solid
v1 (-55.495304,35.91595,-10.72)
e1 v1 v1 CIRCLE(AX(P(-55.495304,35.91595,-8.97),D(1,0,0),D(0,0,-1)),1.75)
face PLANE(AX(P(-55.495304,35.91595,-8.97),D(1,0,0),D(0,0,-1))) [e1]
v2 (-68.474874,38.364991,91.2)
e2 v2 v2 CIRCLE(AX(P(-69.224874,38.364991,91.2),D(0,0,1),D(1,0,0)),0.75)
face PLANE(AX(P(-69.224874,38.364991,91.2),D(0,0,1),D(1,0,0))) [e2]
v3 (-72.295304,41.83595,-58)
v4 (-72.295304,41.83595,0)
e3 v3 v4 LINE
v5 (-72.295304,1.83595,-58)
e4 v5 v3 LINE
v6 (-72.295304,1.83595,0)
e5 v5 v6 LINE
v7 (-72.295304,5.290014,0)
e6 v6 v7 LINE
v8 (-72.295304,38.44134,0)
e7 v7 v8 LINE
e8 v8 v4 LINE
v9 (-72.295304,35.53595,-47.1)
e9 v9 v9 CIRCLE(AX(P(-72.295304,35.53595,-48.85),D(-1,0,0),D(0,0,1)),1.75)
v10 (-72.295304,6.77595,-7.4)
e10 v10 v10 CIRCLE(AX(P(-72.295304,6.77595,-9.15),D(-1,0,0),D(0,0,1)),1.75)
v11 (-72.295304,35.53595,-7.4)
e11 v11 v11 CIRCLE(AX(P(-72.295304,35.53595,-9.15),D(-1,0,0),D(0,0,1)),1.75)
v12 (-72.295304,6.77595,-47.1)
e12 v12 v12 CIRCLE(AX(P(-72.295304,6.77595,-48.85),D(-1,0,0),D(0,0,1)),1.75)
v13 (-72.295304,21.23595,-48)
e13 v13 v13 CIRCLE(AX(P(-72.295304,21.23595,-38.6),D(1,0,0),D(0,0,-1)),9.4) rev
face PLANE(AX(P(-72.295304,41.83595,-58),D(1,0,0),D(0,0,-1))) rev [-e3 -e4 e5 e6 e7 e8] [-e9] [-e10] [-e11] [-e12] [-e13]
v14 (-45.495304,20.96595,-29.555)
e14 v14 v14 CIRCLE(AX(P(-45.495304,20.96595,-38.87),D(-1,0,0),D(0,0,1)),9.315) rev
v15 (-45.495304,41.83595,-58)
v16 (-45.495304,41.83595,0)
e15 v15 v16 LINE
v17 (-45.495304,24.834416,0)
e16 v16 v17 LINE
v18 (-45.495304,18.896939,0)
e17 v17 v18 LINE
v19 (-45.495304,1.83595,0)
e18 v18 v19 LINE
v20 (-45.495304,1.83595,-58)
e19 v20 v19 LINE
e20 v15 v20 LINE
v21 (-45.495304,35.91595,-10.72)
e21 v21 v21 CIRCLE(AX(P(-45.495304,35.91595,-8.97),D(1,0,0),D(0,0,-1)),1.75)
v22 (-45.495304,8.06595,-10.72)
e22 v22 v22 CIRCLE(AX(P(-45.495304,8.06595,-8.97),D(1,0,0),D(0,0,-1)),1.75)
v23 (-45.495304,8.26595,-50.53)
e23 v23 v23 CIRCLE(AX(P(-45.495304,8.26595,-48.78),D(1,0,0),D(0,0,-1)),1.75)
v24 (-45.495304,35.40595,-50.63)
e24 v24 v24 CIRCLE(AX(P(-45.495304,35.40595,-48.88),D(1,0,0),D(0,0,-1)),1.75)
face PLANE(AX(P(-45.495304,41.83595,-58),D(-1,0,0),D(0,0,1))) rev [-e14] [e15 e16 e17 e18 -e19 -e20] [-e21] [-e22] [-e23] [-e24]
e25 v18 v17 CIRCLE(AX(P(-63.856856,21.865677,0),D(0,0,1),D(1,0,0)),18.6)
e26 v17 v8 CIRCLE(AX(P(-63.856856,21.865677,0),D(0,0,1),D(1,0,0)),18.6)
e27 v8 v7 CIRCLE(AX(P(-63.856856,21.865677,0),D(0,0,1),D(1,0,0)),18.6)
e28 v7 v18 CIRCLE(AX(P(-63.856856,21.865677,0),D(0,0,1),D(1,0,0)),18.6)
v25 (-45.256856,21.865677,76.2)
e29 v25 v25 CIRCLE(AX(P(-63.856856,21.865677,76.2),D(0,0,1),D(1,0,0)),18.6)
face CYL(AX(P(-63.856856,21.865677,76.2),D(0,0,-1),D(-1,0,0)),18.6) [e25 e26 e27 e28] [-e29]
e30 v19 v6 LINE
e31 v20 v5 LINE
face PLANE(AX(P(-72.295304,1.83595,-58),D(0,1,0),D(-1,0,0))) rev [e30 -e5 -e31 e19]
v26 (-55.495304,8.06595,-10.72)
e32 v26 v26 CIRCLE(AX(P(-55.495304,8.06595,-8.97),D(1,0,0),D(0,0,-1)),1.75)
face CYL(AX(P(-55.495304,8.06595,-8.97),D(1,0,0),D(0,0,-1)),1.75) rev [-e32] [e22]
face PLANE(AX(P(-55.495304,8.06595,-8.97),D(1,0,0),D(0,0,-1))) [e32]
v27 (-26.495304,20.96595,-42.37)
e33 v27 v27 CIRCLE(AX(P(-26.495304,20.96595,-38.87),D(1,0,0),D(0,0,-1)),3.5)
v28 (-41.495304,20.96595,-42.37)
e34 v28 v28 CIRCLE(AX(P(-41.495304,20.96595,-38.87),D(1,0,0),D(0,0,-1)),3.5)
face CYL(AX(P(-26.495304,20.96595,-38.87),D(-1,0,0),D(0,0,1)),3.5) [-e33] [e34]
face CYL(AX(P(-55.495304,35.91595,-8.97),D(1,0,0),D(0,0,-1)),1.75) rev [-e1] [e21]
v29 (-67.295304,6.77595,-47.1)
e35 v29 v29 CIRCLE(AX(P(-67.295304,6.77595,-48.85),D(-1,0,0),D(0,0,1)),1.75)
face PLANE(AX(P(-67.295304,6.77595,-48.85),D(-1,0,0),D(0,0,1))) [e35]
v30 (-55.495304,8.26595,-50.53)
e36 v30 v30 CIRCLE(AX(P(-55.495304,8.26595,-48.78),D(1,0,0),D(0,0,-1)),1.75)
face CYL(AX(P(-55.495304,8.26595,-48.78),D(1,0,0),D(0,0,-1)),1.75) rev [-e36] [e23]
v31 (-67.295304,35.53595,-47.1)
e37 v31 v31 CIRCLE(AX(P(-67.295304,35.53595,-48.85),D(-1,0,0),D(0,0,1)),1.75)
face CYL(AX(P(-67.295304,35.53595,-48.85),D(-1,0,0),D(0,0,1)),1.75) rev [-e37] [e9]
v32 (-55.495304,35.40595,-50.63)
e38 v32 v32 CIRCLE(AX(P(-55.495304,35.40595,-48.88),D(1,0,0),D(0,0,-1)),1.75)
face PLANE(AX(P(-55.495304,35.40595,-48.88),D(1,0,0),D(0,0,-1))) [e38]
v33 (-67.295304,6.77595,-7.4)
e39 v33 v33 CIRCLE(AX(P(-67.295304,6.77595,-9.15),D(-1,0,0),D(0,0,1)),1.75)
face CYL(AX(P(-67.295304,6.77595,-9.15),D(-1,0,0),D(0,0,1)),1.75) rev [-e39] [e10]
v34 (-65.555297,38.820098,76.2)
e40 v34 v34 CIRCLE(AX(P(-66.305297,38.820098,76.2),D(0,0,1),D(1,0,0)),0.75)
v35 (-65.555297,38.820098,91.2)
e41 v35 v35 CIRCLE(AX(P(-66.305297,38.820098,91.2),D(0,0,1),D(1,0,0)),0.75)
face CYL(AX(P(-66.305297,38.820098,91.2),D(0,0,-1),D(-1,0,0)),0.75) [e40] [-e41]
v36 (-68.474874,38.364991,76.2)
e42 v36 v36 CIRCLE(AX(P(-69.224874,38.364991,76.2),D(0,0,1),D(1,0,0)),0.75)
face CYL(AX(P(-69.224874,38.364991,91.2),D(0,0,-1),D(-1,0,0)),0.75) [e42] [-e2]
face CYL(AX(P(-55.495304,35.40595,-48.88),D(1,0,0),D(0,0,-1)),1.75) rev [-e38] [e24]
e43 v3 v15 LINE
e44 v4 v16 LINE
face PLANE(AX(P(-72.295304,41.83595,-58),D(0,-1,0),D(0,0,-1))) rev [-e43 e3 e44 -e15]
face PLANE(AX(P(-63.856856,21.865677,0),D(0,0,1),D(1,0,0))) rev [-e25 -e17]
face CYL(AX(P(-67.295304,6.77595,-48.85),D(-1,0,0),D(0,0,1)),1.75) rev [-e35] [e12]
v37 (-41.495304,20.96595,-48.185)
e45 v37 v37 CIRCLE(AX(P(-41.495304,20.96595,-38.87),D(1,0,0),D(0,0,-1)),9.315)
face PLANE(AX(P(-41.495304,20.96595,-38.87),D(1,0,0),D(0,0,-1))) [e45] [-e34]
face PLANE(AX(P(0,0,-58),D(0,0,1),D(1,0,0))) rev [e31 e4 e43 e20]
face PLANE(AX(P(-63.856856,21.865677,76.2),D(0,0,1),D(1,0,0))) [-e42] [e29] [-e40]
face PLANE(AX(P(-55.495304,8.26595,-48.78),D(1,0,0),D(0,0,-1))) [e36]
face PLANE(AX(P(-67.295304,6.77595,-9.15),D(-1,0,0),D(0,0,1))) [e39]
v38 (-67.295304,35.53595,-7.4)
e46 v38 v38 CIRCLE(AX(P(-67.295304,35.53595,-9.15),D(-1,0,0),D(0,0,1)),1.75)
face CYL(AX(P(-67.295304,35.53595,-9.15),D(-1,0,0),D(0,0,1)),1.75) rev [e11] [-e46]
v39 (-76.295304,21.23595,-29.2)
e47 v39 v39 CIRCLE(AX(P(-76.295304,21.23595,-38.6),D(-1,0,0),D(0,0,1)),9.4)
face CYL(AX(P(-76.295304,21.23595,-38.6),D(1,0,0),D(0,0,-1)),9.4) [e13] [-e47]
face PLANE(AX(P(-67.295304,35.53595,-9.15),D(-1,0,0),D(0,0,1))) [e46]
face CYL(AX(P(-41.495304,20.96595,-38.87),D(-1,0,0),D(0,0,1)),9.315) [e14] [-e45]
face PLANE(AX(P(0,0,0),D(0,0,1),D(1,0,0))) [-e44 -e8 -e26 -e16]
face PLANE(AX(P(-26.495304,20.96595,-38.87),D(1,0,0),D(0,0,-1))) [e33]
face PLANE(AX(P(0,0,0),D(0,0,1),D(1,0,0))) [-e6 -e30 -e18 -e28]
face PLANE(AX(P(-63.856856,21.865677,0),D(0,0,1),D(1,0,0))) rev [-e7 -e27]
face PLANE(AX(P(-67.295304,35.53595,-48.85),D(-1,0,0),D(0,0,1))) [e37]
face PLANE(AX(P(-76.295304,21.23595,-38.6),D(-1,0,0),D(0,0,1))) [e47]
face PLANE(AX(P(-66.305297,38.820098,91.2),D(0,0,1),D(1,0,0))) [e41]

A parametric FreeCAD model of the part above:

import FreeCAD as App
import Part
import Sketcher

V = App.Vector
Q = App.Units.Quantity

doc = App.newDocument("Part")
body = doc.addObject("PartDesign::Body", "Body")

sketch1 = doc.addObject("Sketcher::SketchObject", "Sketch")
body.addObject(sketch1)
sketch1.AttachmentSupport = (doc.XY_Plane, [""])
sketch1.MapMode = "FlatFace"
sketch1.addGeometry(Part.Circle(V(-64, 22, 0), V(0, 0, 1), 19), False)
sketch1.addConstraint([
    Sketcher.Constraint("Diameter", 0, Q("37.2 mm")),
    Sketcher.Constraint("DistanceX", 0, 3, -1, 1, Q("63.856856 mm")),
    Sketcher.Constraint("DistanceY", -1, 1, 0, 3, Q("21.865677 mm")),
])
pad1 = doc.addObject("PartDesign::Pad", "Pad")
body.addObject(pad1)
pad1.Profile = sketch1
pad1.Length = 76.2

sketch2 = doc.addObject("Sketcher::SketchObject", "Sketch001")
body.addObject(sketch2)
sketch2.AttachmentSupport = (doc.XY_Plane, [""])
sketch2.MapMode = "FlatFace"
sketch2.AttachmentOffset = App.Placement(V(0, 0, 76.2), App.Rotation())
sketch2.addGeometry(Part.Circle(V(-66.3, 38.8, 0), V(0, 0, 1), 0.8), False)
sketch2.addConstraint([
    Sketcher.Constraint("Diameter", 0, Q("1.5 mm")),
    Sketcher.Constraint("DistanceX", 0, 3, -1, 1, Q("66.305297 mm")),
    Sketcher.Constraint("DistanceY", -1, 1, 0, 3, Q("38.820098 mm")),
])
pad2 = doc.addObject("PartDesign::Pad", "Pad001")
body.addObject(pad2)
pad2.Profile = sketch2
pad2.Length = 15

sketch3 = doc.addObject("Sketcher::SketchObject", "Sketch002")
body.addObject(sketch3)
sketch3.AttachmentSupport = (doc.XY_Plane, [""])
sketch3.MapMode = "FlatFace"
sketch3.AttachmentOffset = App.Placement(V(0, 0, 76.2), App.Rotation())
sketch3.addGeometry(Part.Circle(V(-69.2, 38.4, 0), V(0, 0, 1), 0.8), False)
sketch3.addConstraint([
    Sketcher.Constraint("Diameter", 0, Q("1.5 mm")),
    Sketcher.Constraint("DistanceY", -1, 1, 0, 3, Q("38.364991 mm")),
    Sketcher.Constraint("DistanceX", 0, 3, -1, 1, Q("69.224874 mm")),
])
pad3 = doc.addObject("PartDesign::Pad", "Pad002")
body.addObject(pad3)
pad3.Profile = sketch3
pad3.Length = 15

sketch4 = doc.addObject("Sketcher::SketchObject", "Sketch003")
body.addObject(sketch4)
sketch4.AttachmentSupport = (doc.XY_Plane, [""])
sketch4.MapMode = "FlatFace"
sketch4.addGeometry([
    Part.LineSegment(V(-45, 42, 0), V(-45, 2, 0)),
    Part.LineSegment(V(-45, 2, 0), V(-72, 2, 0)),
    Part.LineSegment(V(-72, 2, 0), V(-72, 42, 0)),
    Part.LineSegment(V(-72, 42, 0), V(-45, 42, 0)),
], False)
sketch4.addConstraint([
    Sketcher.Constraint("Coincident", 0, 2, 1, 1),
    Sketcher.Constraint("Coincident", 1, 2, 2, 1),
    Sketcher.Constraint("Coincident", 2, 2, 3, 1),
    Sketcher.Constraint("Coincident", 3, 2, 0, 1),
    Sketcher.Constraint("Vertical", 0),
    Sketcher.Constraint("Horizontal", 1),
    Sketcher.Constraint("Vertical", 2),
    Sketcher.Constraint("Horizontal", 3),
    Sketcher.Constraint("DistanceY", 0, 2, 0, 1, Q("40 mm")),
    Sketcher.Constraint("DistanceX", 1, 2, 1, 1, Q("26.8 mm")),
    Sketcher.Constraint("DistanceY", -1, 1, 0, 2, Q("1.83595 mm")),
    Sketcher.Constraint("DistanceX", 0, 2, -1, 1, Q("45.495304 mm")),
])
pad4 = doc.addObject("PartDesign::Pad", "Pad003")
body.addObject(pad4)
pad4.Profile = sketch4
pad4.Length = 58
pad4.Reversed = True

sketch5 = doc.addObject("Sketcher::SketchObject", "Sketch004")
body.addObject(sketch5)
sketch5.AttachmentSupport = (doc.YZ_Plane, [""])
sketch5.MapMode = "FlatFace"
sketch5.AttachmentOffset = App.Placement(V(0, 0, -72.295304), App.Rotation())
sketch5.addGeometry(Part.Circle(V(35.5, -48.9, 0), V(0, 0, 1), 1.8), False)
sketch5.addConstraint([
    Sketcher.Constraint("Diameter", 0, Q("3.5 mm")),
    Sketcher.Constraint("DistanceY", 0, 3, -1, 1, Q("48.85 mm")),
    Sketcher.Constraint("DistanceX", -1, 1, 0, 3, Q("35.53595 mm")),
])
pocket1 = doc.addObject("PartDesign::Pocket", "Pocket")
body.addObject(pocket1)
pocket1.Profile = sketch5
pocket1.Length = 5
pocket1.Reversed = True

sketch6 = doc.addObject("Sketcher::SketchObject", "Sketch005")
body.addObject(sketch6)
sketch6.AttachmentSupport = (doc.YZ_Plane, [""])
sketch6.MapMode = "FlatFace"
sketch6.AttachmentOffset = App.Placement(V(0, 0, -72.295304), App.Rotation())
sketch6.addGeometry(Part.Circle(V(35.5, -9.2, 0), V(0, 0, 1), 1.8), False)
sketch6.addConstraint([
    Sketcher.Constraint("Diameter", 0, Q("3.5 mm")),
    Sketcher.Constraint("DistanceY", 0, 3, -1, 1, Q("9.15 mm")),
    Sketcher.Constraint("DistanceX", -1, 1, 0, 3, Q("35.53595 mm")),
])
pocket2 = doc.addObject("PartDesign::Pocket", "Pocket001")
body.addObject(pocket2)
pocket2.Profile = sketch6
pocket2.Length = 5
pocket2.Reversed = True

sketch7 = doc.addObject("Sketcher::SketchObject", "Sketch006")
body.addObject(sketch7)
sketch7.AttachmentSupport = (doc.YZ_Plane, [""])
sketch7.MapMode = "FlatFace"
sketch7.AttachmentOffset = App.Placement(V(0, 0, -72.295304), App.Rotation())
sketch7.addGeometry(Part.Circle(V(6.8, -48.9, 0), V(0, 0, 1), 1.8), False)
sketch7.addConstraint([
    Sketcher.Constraint("Diameter", 0, Q("3.5 mm")),
    Sketcher.Constraint("DistanceY", 0, 3, -1, 1, Q("48.85 mm")),
    Sketcher.Constraint("DistanceX", -1, 1, 0, 3, Q("6.77595 mm")),
])
pocket3 = doc.addObject("PartDesign::Pocket", "Pocket002")
body.addObject(pocket3)
pocket3.Profile = sketch7
pocket3.Length = 5
pocket3.Reversed = True

sketch8 = doc.addObject("Sketcher::SketchObject", "Sketch007")
body.addObject(sketch8)
sketch8.AttachmentSupport = (doc.YZ_Plane, [""])
sketch8.MapMode = "FlatFace"
sketch8.AttachmentOffset = App.Placement(V(0, 0, -72.295304), App.Rotation())
sketch8.addGeometry(Part.Circle(V(6.8, -9.2, 0), V(0, 0, 1), 1.8), False)
sketch8.addConstraint([
    Sketcher.Constraint("Diameter", 0, Q("3.5 mm")),
    Sketcher.Constraint("DistanceY", 0, 3, -1, 1, Q("9.15 mm")),
    Sketcher.Constraint("DistanceX", -1, 1, 0, 3, Q("6.77595 mm")),
])
pocket4 = doc.addObject("PartDesign::Pocket", "Pocket003")
body.addObject(pocket4)
pocket4.Profile = sketch8
pocket4.Length = 5
pocket4.Reversed = True

sketch9 = doc.addObject("Sketcher::SketchObject", "Sketch008")
body.addObject(sketch9)
sketch9.AttachmentSupport = (doc.YZ_Plane, [""])
sketch9.MapMode = "FlatFace"
sketch9.AttachmentOffset = App.Placement(V(0, 0, -72.295304), App.Rotation())
sketch9.addGeometry(Part.Circle(V(21, -39, 0), V(0, 0, 1), 9), False)
sketch9.addConstraint([
    Sketcher.Constraint("Diameter", 0, Q("18.8 mm")),
    Sketcher.Constraint("DistanceY", 0, 3, -1, 1, Q("38.6 mm")),
    Sketcher.Constraint("DistanceX", -1, 1, 0, 3, Q("21.23595 mm")),
])
pad5 = doc.addObject("PartDesign::Pad", "Pad004")
body.addObject(pad5)
pad5.Profile = sketch9
pad5.Length = 4
pad5.Reversed = True

sketch10 = doc.addObject("Sketcher::SketchObject", "Sketch009")
body.addObject(sketch10)
sketch10.AttachmentSupport = (doc.YZ_Plane, [""])
sketch10.MapMode = "FlatFace"
sketch10.AttachmentOffset = App.Placement(V(0, 0, -45.495304), App.Rotation())
sketch10.addGeometry(Part.Circle(V(35.9, -9, 0), V(0, 0, 1), 1.8), False)
sketch10.addConstraint([
    Sketcher.Constraint("Diameter", 0, Q("3.5 mm")),
    Sketcher.Constraint("DistanceY", 0, 3, -1, 1, Q("8.97 mm")),
    Sketcher.Constraint("DistanceX", -1, 1, 0, 3, Q("35.91595 mm")),
])
pocket5 = doc.addObject("PartDesign::Pocket", "Pocket004")
body.addObject(pocket5)
pocket5.Profile = sketch10
pocket5.Length = 10

sketch11 = doc.addObject("Sketcher::SketchObject", "Sketch010")
body.addObject(sketch11)
sketch11.AttachmentSupport = (doc.YZ_Plane, [""])
sketch11.MapMode = "FlatFace"
sketch11.AttachmentOffset = App.Placement(V(0, 0, -45.495304), App.Rotation())
sketch11.addGeometry(Part.Circle(V(8.1, -9, 0), V(0, 0, 1), 1.8), False)
sketch11.addConstraint([
    Sketcher.Constraint("Diameter", 0, Q("3.5 mm")),
    Sketcher.Constraint("DistanceY", 0, 3, -1, 1, Q("8.97 mm")),
    Sketcher.Constraint("DistanceX", -1, 1, 0, 3, Q("8.06595 mm")),
])
pocket6 = doc.addObject("PartDesign::Pocket", "Pocket005")
body.addObject(pocket6)
pocket6.Profile = sketch11
pocket6.Length = 10

sketch12 = doc.addObject("Sketcher::SketchObject", "Sketch011")
body.addObject(sketch12)
sketch12.AttachmentSupport = (doc.YZ_Plane, [""])
sketch12.MapMode = "FlatFace"
sketch12.AttachmentOffset = App.Placement(V(0, 0, -45.495304), App.Rotation())
sketch12.addGeometry(Part.Circle(V(8.3, -48.8, 0), V(0, 0, 1), 1.8), False)
sketch12.addConstraint([
    Sketcher.Constraint("Diameter", 0, Q("3.5 mm")),
    Sketcher.Constraint("DistanceY", 0, 3, -1, 1, Q("48.78 mm")),
    Sketcher.Constraint("DistanceX", -1, 1, 0, 3, Q("8.26595 mm")),
])
pocket7 = doc.addObject("PartDesign::Pocket", "Pocket006")
body.addObject(pocket7)
pocket7.Profile = sketch12
pocket7.Length = 10

sketch13 = doc.addObject("Sketcher::SketchObject", "Sketch012")
body.addObject(sketch13)
sketch13.AttachmentSupport = (doc.YZ_Plane, [""])
sketch13.MapMode = "FlatFace"
sketch13.AttachmentOffset = App.Placement(V(0, 0, -45.495304), App.Rotation())
sketch13.addGeometry(Part.Circle(V(35.4, -48.9, 0), V(0, 0, 1), 1.8), False)
sketch13.addConstraint([
    Sketcher.Constraint("Diameter", 0, Q("3.5 mm")),
    Sketcher.Constraint("DistanceY", 0, 3, -1, 1, Q("48.88 mm")),
    Sketcher.Constraint("DistanceX", -1, 1, 0, 3, Q("35.40595 mm")),
])
pocket8 = doc.addObject("PartDesign::Pocket", "Pocket007")
body.addObject(pocket8)
pocket8.Profile = sketch13
pocket8.Length = 10

sketch14 = doc.addObject("Sketcher::SketchObject", "Sketch013")
body.addObject(sketch14)
sketch14.AttachmentSupport = (doc.YZ_Plane, [""])
sketch14.MapMode = "FlatFace"
sketch14.AttachmentOffset = App.Placement(V(0, 0, -45.495304), App.Rotation())
sketch14.addGeometry(Part.Circle(V(21, -39, 0), V(0, 0, 1), 9), False)
sketch14.addConstraint([
    Sketcher.Constraint("Diameter", 0, Q("18.63 mm")),
    Sketcher.Constraint("DistanceY", 0, 3, -1, 1, Q("38.87 mm")),
    Sketcher.Constraint("DistanceX", -1, 1, 0, 3, Q("20.96595 mm")),
])
pad6 = doc.addObject("PartDesign::Pad", "Pad005")
body.addObject(pad6)
pad6.Profile = sketch14
pad6.Length = 4

sketch15 = doc.addObject("Sketcher::SketchObject", "Sketch014")
body.addObject(sketch15)
sketch15.AttachmentSupport = (doc.YZ_Plane, [""])
sketch15.MapMode = "FlatFace"
sketch15.AttachmentOffset = App.Placement(V(0, 0, -41.495304), App.Rotation())
sketch15.addGeometry(Part.Circle(V(21, -38.9, 0), V(0, 0, 1), 3.5), False)
sketch15.addConstraint([
    Sketcher.Constraint("Diameter", 0, Q("7 mm")),
    Sketcher.Constraint("DistanceY", 0, 3, -1, 1, Q("38.87 mm")),
    Sketcher.Constraint("DistanceX", -1, 1, 0, 3, Q("20.96595 mm")),
])
pad7 = doc.addObject("PartDesign::Pad", "Pad006")
body.addObject(pad7)
pad7.Profile = sketch15
pad7.Length = 15

doc.recompute()
